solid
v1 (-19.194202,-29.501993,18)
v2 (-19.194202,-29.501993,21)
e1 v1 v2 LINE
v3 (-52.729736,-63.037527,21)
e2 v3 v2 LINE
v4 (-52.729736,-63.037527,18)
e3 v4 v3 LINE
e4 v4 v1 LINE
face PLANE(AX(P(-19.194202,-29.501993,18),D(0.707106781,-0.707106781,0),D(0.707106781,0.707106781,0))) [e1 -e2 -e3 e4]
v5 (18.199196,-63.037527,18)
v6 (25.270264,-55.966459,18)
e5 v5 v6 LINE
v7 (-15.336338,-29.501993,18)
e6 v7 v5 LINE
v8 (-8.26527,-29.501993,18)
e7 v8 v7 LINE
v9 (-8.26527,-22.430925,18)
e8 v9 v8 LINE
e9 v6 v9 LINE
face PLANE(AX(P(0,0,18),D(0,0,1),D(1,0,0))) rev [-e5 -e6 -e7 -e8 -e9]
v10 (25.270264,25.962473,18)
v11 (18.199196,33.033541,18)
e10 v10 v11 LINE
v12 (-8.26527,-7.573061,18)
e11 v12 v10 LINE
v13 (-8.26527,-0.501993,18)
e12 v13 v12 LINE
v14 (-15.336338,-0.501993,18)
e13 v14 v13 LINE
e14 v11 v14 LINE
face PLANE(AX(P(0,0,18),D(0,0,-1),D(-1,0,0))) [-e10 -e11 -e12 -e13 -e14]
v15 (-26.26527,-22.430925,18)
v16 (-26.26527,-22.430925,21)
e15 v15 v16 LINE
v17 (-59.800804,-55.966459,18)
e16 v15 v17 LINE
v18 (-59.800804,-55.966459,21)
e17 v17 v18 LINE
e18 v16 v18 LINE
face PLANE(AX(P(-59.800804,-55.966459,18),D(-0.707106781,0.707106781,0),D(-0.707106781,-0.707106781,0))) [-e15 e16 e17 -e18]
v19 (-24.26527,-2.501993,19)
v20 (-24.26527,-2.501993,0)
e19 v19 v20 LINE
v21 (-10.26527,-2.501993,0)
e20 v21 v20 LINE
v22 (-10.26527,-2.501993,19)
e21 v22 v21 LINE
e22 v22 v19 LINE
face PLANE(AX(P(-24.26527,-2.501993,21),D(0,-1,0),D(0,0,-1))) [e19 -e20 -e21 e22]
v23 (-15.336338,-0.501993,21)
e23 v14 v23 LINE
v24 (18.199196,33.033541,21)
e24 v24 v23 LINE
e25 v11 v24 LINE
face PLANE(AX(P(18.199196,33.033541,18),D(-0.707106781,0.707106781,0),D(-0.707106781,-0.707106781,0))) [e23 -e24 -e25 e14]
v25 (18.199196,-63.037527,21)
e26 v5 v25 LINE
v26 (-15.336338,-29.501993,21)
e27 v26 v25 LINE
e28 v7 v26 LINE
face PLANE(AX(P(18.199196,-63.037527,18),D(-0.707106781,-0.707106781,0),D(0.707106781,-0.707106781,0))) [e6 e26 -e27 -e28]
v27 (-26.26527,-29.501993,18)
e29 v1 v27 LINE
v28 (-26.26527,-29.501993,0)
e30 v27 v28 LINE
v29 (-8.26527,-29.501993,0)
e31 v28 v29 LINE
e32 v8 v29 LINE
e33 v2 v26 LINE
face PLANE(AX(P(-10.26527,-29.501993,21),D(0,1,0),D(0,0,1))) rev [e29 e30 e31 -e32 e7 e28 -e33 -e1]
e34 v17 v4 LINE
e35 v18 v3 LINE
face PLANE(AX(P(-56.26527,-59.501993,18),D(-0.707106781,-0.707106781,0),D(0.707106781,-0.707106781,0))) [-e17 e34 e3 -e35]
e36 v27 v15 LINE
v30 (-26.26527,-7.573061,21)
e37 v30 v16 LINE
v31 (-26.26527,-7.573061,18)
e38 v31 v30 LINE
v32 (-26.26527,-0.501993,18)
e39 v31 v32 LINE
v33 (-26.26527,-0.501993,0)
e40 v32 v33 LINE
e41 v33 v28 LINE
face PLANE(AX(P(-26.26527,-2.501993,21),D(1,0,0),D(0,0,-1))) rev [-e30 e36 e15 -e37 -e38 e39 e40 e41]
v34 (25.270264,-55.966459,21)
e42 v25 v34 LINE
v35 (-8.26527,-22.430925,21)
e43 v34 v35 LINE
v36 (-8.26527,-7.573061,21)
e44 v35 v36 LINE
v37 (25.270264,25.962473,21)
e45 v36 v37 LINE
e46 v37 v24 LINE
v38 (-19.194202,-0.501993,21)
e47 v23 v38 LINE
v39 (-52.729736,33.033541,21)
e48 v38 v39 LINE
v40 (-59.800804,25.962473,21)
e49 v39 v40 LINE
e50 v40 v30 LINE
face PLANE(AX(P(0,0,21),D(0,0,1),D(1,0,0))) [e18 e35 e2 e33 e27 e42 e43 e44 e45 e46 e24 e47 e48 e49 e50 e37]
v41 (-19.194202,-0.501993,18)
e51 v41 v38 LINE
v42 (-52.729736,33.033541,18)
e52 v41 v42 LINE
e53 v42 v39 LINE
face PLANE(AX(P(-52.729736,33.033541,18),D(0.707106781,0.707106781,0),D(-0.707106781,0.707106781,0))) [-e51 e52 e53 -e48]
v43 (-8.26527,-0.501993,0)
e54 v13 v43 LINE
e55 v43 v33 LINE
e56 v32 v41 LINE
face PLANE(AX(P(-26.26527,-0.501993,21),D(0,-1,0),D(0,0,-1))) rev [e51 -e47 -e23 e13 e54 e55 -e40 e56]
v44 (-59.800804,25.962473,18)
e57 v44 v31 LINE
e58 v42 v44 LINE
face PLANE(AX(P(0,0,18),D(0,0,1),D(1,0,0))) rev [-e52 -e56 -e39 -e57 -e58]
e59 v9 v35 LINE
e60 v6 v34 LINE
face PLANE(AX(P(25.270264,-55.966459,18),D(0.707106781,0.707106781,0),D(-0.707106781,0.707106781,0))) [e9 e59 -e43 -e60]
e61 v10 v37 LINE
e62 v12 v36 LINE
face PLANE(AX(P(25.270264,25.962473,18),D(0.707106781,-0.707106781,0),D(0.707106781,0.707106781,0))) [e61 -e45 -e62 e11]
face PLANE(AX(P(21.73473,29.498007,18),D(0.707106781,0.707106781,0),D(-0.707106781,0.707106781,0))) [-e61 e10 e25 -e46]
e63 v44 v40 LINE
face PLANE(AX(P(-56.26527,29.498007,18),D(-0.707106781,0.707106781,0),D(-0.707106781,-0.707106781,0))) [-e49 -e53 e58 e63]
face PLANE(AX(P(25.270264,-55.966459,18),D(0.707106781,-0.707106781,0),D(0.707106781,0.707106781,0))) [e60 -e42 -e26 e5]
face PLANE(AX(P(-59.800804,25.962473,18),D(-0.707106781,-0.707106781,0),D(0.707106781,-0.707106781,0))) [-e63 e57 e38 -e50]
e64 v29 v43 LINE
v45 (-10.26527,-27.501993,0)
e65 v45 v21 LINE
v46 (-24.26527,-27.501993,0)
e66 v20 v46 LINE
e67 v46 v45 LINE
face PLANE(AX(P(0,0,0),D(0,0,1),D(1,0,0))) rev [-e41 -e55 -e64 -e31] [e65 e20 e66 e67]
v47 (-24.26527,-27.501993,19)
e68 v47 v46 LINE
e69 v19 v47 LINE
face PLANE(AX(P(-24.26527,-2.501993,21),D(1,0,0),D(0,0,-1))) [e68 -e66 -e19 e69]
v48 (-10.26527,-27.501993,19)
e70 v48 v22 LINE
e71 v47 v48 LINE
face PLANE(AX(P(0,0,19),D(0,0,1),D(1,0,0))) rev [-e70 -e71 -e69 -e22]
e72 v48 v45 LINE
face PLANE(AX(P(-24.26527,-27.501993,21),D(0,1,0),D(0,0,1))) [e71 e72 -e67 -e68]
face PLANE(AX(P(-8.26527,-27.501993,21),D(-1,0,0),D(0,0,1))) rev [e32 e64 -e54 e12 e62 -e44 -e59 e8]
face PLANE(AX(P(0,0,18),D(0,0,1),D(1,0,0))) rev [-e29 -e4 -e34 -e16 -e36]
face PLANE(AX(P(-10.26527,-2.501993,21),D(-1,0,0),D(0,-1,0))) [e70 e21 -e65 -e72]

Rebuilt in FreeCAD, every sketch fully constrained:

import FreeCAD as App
import Part
import Sketcher

V = App.Vector

doc = App.newDocument("Part")
body = doc.addObject("PartDesign::Body", "Body")

# Sketch on XY plane
sketch1 = body.newObject("Sketcher::SketchObject", "Sketch")
sketch1.AttachmentSupport = (doc.getObject("XY_Plane"), [""])
sketch1.MapMode = "FlatFace"
sketch1.addGeometry([
    Part.LineSegment(V(-26.26527, -29.501993, 0), V(-8.26527, -29.501993, 0)),  # 0
    Part.LineSegment(V(-8.26527, -29.501993, 0), V(-8.26527, -0.501993, 0)),  # 1
    Part.LineSegment(V(-8.26527, -0.501993, 0), V(-26.26527, -0.501993, 0)),  # 2
    Part.LineSegment(V(-26.26527, -0.501993, 0), V(-26.26527, -29.501993, 0)),  # 3
    Part.LineSegment(V(-10.26527, -27.501993, 0), V(-24.26527, -27.501993, 0)),  # 4
    Part.LineSegment(V(-24.26527, -27.501993, 0), V(-24.26527, -2.501993, 0)),  # 5
    Part.LineSegment(V(-24.26527, -2.501993, 0), V(-10.26527, -2.501993, 0)),  # 6
    Part.LineSegment(V(-10.26527, -2.501993, 0), V(-10.26527, -27.501993, 0)),  # 7
], False)
sketch1.addConstraint([
    Sketcher.Constraint("Coincident", 0, 2, 1, 1),
    Sketcher.Constraint("Coincident", 1, 2, 2, 1),
    Sketcher.Constraint("Coincident", 2, 2, 3, 1),
    Sketcher.Constraint("Coincident", 3, 2, 0, 1),
    Sketcher.Constraint("Coincident", 4, 2, 5, 1),
    Sketcher.Constraint("Coincident", 5, 2, 6, 1),
    Sketcher.Constraint("Coincident", 6, 2, 7, 1),
    Sketcher.Constraint("Coincident", 7, 2, 4, 1),
    Sketcher.Constraint("Horizontal", 0),
    Sketcher.Constraint("Vertical", 1),
    Sketcher.Constraint("Horizontal", 2),
    Sketcher.Constraint("Vertical", 3),
    Sketcher.Constraint("Horizontal", 4),
    Sketcher.Constraint("Vertical", 5),
    Sketcher.Constraint("Horizontal", 6),
    Sketcher.Constraint("Vertical", 7),
    Sketcher.Constraint("DistanceX", 0, 1, 0, 2, 18.0),
    Sketcher.Constraint("DistanceX", 4, 2, 4, 1, 14.0),
    Sketcher.Constraint("DistanceY", 1, 1, 1, 2, 29.0),
    Sketcher.Constraint("DistanceY", 5, 1, 5, 2, 25.0),
    Sketcher.Constraint("DistanceX", 3, 2, 4, 2, 2.0),
    Sketcher.Constraint("DistanceY", 3, 2, 4, 2, 2.0),
    Sketcher.Constraint("DistanceX", 0, 2, -1, 1, 8.26527),
    Sketcher.Constraint("DistanceY", 0, 2, -1, 1, 29.501993),
])
pad1 = body.newObject("PartDesign::Pad", "Pad")
pad1.Profile = sketch1
pad1.Length = 21

# Sketch on XY plane
sketch2 = body.newObject("Sketcher::SketchObject", "Sketch001")
sketch2.AttachmentSupport = (doc.getObject("XY_Plane"), [""])
sketch2.MapMode = "FlatFace"
sketch2.AttachmentOffset = App.Placement(V(0, 0, 21), App.Rotation())
sketch2.addGeometry([
    Part.LineSegment(V(-24.26527, -2.501993, 0), V(-24.26527, -27.501993, 0)),
    Part.LineSegment(V(-24.26527, -27.501993, 0), V(-10.26527, -27.501993, 0)),
    Part.LineSegment(V(-10.26527, -27.501993, 0), V(-10.26527, -2.501993, 0)),
    Part.LineSegment(V(-10.26527, -2.501993, 0), V(-24.26527, -2.501993, 0)),
], False)
sketch2.addConstraint([
    Sketcher.Constraint("Coincident", 0, 2, 1, 1),
    Sketcher.Constraint("Coincident", 1, 2, 2, 1),
    Sketcher.Constraint("Coincident", 2, 2, 3, 1),
    Sketcher.Constraint("Coincident", 3, 2, 0, 1),
    Sketcher.Constraint("Vertical", 0),
    Sketcher.Constraint("Horizontal", 1),
    Sketcher.Constraint("Vertical", 2),
    Sketcher.Constraint("Horizontal", 3),
    Sketcher.Constraint("DistanceX", 1, 1, 1, 2, 14.0),
    Sketcher.Constraint("DistanceY", 0, 2, 0, 1, 25.0),
    Sketcher.Constraint("DistanceX", 0, 2, -1, 1, 24.26527),
    Sketcher.Constraint("DistanceY", 0, 2, -1, 1, 27.501993),
])
pad2 = body.newObject("PartDesign::Pad", "Pad001")
pad2.Profile = sketch2
pad2.Length = 2
pad2.Reversed = True

# Sketch on XY plane
sketch3 = body.newObject("Sketcher::SketchObject", "Sketch002")
sketch3.AttachmentSupport = (doc.getObject("XY_Plane"), [""])
sketch3.MapMode = "FlatFace"
sketch3.AttachmentOffset = App.Placement(V(0, 0, 21), App.Rotation())
sketch3.addGeometry([
    Part.LineSegment(V(-52.729736, 33.033541, 0), V(-59.800804, 25.962473, 0)),  # 0
    Part.LineSegment(V(-59.800804, 25.962473, 0), V(-26.26527, -7.573061, 0)),  # 1
    Part.LineSegment(V(-26.26527, -7.573061, 0), V(-26.26527, -0.501993, 0)),  # 2
    Part.LineSegment(V(-26.26527, -0.501993, 0), V(-19.194202, -0.501993, 0)),  # 3
    Part.LineSegment(V(-19.194202, -0.501993, 0), V(-52.729736, 33.033541, 0)),  # 4
    Part.LineSegment(V(25.270264, 25.962473, 0), V(18.199196, 33.033541, 0)),  # 5
    Part.LineSegment(V(18.199196, 33.033541, 0), V(-15.336338, -0.501993, 0)),  # 6
    Part.LineSegment(V(-15.336338, -0.501993, 0), V(-8.26527, -0.501993, 0)),  # 7
    Part.LineSegment(V(-8.26527, -0.501993, 0), V(-8.26527, -7.573061, 0)),  # 8
    Part.LineSegment(V(-8.26527, -7.573061, 0), V(25.270264, 25.962473, 0)),  # 9
    Part.LineSegment(V(18.199196, -63.037527, 0), V(25.270264, -55.966459, 0)),  # 10
    Part.LineSegment(V(25.270264, -55.966459, 0), V(-8.26527, -22.430925, 0)),  # 11
    Part.LineSegment(V(-8.26527, -22.430925, 0), V(-8.26527, -29.501993, 0)),  # 12
    Part.LineSegment(V(-8.26527, -29.501993, 0), V(-15.336338, -29.501993, 0)),  # 13
    Part.LineSegment(V(-15.336338, -29.501993, 0), V(18.199196, -63.037527, 0)),  # 14
    Part.LineSegment(V(-59.800804, -55.966459, 0), V(-52.729736, -63.037527, 0)),  # 15
    Part.LineSegment(V(-52.729736, -63.037527, 0), V(-19.194202, -29.501993, 0)),  # 16
    Part.LineSegment(V(-19.194202, -29.501993, 0), V(-26.26527, -29.501993, 0)),  # 17
    Part.LineSegment(V(-26.26527, -29.501993, 0), V(-26.26527, -22.430925, 0)),  # 18
    Part.LineSegment(V(-26.26527, -22.430925, 0), V(-59.800804, -55.966459, 0)),  # 19
], False)
sketch3.addConstraint([
    Sketcher.Constraint("Coincident", 0, 2, 1, 1),
    Sketcher.Constraint("Coincident", 1, 2, 2, 1),
    Sketcher.Constraint("Coincident", 2, 2, 3, 1),
    Sketcher.Constraint("Coincident", 3, 2, 4, 1),
    Sketcher.Constraint("Coincident", 4, 2, 0, 1),
    Sketcher.Constraint("Coincident", 5, 2, 6, 1),
    Sketcher.Constraint("Coincident", 6, 2, 7, 1),
    Sketcher.Constraint("Coincident", 7, 2, 8, 1),
    Sketcher.Constraint("Coincident", 8, 2, 9, 1),
    Sketcher.Constraint("Coincident", 9, 2, 5, 1),
    Sketcher.Constraint("Coincident", 10, 2, 11, 1),
    Sketcher.Constraint("Coincident", 11, 2, 12, 1),
    Sketcher.Constraint("Coincident", 12, 2, 13, 1),
    Sketcher.Constraint("Coincident", 13, 2, 14, 1),
    Sketcher.Constraint("Coincident", 14, 2, 10, 1),
    Sketcher.Constraint("Coincident", 15, 2, 16, 1),
    Sketcher.Constraint("Coincident", 16, 2, 17, 1),
    Sketcher.Constraint("Coincident", 17, 2, 18, 1),
    Sketcher.Constraint("Coincident", 18, 2, 19, 1),
    Sketcher.Constraint("Coincident", 19, 2, 15, 1),
    Sketcher.Constraint("Vertical", 2),
    Sketcher.Constraint("Horizontal", 3),
    Sketcher.Constraint("Horizontal", 7),
    Sketcher.Constraint("Vertical", 8),
    Sketcher.Constraint("Vertical", 12),
    Sketcher.Constraint("Horizontal", 13),
    Sketcher.Constraint("Horizontal", 17),
    Sketcher.Constraint("Vertical", 18),
    Sketcher.Constraint("Perpendicular", 0, 1),
    Sketcher.Constraint("Parallel", 1, 4),
    Sketcher.Constraint("Parallel", 4, 5),
    Sketcher.Constraint("Perpendicular", 5, 6),
    Sketcher.Constraint("Parallel", 6, 9),
    Sketcher.Constraint("Parallel", 9, 10),
    Sketcher.Constraint("Perpendicular", 10, 11),
    Sketcher.Constraint("Parallel", 11, 14),
    Sketcher.Constraint("Parallel", 14, 15),
    Sketcher.Constraint("Perpendicular", 15, 16),
    Sketcher.Constraint("Parallel", 16, 19),
    Sketcher.Constraint("Horizontal", 4, 2, 5, 2),
    Sketcher.Constraint("Horizontal", 3, 2, 6, 2),
    Sketcher.Constraint("Horizontal", 1, 2, 8, 2),
    Sketcher.Constraint("Horizontal", 0, 2, 9, 2),
    Sketcher.Constraint("Horizontal", 14, 2, 15, 2),
    Sketcher.Constraint("Horizontal", 13, 2, 16, 2),
    Sketcher.Constraint("Horizontal", 11, 2, 18, 2),
    Sketcher.Constraint("Horizontal", 10, 2, 19, 2),
    Sketcher.Constraint("Vertical", 9, 2, 10, 2),
    Sketcher.Constraint("Vertical", 8, 2, 11, 2),
    Sketcher.Constraint("Vertical", 6, 2, 13, 2),
    Sketcher.Constraint("Vertical", 5, 2, 14, 2),
    Sketcher.Constraint("Vertical", 4, 2, 15, 2),
    Sketcher.Constraint("Vertical", 3, 2, 16, 2),
    Sketcher.Constraint("Equal", 17, 2),
    Sketcher.Constraint("Distance", 0, 10.0),
    Sketcher.Constraint("DistanceX", 0, 2, 5, 2, 78.0),
    Sketcher.Constraint("DistanceX", 2, 2, 7, 2, 18.0),
    Sketcher.Constraint("DistanceY", 12, 2, 7, 2, 29.0),
    Sketcher.Constraint("DistanceX", 1, 2, -1, 1, 26.26527),
    Sketcher.Constraint("DistanceY", 1, 2, -1, 1, 7.573061),
])
pad3 = body.newObject("PartDesign::Pad", "Pad002")
pad3.Profile = sketch3
pad3.Length = 3
pad3.Reversed = True

doc.recompute()
